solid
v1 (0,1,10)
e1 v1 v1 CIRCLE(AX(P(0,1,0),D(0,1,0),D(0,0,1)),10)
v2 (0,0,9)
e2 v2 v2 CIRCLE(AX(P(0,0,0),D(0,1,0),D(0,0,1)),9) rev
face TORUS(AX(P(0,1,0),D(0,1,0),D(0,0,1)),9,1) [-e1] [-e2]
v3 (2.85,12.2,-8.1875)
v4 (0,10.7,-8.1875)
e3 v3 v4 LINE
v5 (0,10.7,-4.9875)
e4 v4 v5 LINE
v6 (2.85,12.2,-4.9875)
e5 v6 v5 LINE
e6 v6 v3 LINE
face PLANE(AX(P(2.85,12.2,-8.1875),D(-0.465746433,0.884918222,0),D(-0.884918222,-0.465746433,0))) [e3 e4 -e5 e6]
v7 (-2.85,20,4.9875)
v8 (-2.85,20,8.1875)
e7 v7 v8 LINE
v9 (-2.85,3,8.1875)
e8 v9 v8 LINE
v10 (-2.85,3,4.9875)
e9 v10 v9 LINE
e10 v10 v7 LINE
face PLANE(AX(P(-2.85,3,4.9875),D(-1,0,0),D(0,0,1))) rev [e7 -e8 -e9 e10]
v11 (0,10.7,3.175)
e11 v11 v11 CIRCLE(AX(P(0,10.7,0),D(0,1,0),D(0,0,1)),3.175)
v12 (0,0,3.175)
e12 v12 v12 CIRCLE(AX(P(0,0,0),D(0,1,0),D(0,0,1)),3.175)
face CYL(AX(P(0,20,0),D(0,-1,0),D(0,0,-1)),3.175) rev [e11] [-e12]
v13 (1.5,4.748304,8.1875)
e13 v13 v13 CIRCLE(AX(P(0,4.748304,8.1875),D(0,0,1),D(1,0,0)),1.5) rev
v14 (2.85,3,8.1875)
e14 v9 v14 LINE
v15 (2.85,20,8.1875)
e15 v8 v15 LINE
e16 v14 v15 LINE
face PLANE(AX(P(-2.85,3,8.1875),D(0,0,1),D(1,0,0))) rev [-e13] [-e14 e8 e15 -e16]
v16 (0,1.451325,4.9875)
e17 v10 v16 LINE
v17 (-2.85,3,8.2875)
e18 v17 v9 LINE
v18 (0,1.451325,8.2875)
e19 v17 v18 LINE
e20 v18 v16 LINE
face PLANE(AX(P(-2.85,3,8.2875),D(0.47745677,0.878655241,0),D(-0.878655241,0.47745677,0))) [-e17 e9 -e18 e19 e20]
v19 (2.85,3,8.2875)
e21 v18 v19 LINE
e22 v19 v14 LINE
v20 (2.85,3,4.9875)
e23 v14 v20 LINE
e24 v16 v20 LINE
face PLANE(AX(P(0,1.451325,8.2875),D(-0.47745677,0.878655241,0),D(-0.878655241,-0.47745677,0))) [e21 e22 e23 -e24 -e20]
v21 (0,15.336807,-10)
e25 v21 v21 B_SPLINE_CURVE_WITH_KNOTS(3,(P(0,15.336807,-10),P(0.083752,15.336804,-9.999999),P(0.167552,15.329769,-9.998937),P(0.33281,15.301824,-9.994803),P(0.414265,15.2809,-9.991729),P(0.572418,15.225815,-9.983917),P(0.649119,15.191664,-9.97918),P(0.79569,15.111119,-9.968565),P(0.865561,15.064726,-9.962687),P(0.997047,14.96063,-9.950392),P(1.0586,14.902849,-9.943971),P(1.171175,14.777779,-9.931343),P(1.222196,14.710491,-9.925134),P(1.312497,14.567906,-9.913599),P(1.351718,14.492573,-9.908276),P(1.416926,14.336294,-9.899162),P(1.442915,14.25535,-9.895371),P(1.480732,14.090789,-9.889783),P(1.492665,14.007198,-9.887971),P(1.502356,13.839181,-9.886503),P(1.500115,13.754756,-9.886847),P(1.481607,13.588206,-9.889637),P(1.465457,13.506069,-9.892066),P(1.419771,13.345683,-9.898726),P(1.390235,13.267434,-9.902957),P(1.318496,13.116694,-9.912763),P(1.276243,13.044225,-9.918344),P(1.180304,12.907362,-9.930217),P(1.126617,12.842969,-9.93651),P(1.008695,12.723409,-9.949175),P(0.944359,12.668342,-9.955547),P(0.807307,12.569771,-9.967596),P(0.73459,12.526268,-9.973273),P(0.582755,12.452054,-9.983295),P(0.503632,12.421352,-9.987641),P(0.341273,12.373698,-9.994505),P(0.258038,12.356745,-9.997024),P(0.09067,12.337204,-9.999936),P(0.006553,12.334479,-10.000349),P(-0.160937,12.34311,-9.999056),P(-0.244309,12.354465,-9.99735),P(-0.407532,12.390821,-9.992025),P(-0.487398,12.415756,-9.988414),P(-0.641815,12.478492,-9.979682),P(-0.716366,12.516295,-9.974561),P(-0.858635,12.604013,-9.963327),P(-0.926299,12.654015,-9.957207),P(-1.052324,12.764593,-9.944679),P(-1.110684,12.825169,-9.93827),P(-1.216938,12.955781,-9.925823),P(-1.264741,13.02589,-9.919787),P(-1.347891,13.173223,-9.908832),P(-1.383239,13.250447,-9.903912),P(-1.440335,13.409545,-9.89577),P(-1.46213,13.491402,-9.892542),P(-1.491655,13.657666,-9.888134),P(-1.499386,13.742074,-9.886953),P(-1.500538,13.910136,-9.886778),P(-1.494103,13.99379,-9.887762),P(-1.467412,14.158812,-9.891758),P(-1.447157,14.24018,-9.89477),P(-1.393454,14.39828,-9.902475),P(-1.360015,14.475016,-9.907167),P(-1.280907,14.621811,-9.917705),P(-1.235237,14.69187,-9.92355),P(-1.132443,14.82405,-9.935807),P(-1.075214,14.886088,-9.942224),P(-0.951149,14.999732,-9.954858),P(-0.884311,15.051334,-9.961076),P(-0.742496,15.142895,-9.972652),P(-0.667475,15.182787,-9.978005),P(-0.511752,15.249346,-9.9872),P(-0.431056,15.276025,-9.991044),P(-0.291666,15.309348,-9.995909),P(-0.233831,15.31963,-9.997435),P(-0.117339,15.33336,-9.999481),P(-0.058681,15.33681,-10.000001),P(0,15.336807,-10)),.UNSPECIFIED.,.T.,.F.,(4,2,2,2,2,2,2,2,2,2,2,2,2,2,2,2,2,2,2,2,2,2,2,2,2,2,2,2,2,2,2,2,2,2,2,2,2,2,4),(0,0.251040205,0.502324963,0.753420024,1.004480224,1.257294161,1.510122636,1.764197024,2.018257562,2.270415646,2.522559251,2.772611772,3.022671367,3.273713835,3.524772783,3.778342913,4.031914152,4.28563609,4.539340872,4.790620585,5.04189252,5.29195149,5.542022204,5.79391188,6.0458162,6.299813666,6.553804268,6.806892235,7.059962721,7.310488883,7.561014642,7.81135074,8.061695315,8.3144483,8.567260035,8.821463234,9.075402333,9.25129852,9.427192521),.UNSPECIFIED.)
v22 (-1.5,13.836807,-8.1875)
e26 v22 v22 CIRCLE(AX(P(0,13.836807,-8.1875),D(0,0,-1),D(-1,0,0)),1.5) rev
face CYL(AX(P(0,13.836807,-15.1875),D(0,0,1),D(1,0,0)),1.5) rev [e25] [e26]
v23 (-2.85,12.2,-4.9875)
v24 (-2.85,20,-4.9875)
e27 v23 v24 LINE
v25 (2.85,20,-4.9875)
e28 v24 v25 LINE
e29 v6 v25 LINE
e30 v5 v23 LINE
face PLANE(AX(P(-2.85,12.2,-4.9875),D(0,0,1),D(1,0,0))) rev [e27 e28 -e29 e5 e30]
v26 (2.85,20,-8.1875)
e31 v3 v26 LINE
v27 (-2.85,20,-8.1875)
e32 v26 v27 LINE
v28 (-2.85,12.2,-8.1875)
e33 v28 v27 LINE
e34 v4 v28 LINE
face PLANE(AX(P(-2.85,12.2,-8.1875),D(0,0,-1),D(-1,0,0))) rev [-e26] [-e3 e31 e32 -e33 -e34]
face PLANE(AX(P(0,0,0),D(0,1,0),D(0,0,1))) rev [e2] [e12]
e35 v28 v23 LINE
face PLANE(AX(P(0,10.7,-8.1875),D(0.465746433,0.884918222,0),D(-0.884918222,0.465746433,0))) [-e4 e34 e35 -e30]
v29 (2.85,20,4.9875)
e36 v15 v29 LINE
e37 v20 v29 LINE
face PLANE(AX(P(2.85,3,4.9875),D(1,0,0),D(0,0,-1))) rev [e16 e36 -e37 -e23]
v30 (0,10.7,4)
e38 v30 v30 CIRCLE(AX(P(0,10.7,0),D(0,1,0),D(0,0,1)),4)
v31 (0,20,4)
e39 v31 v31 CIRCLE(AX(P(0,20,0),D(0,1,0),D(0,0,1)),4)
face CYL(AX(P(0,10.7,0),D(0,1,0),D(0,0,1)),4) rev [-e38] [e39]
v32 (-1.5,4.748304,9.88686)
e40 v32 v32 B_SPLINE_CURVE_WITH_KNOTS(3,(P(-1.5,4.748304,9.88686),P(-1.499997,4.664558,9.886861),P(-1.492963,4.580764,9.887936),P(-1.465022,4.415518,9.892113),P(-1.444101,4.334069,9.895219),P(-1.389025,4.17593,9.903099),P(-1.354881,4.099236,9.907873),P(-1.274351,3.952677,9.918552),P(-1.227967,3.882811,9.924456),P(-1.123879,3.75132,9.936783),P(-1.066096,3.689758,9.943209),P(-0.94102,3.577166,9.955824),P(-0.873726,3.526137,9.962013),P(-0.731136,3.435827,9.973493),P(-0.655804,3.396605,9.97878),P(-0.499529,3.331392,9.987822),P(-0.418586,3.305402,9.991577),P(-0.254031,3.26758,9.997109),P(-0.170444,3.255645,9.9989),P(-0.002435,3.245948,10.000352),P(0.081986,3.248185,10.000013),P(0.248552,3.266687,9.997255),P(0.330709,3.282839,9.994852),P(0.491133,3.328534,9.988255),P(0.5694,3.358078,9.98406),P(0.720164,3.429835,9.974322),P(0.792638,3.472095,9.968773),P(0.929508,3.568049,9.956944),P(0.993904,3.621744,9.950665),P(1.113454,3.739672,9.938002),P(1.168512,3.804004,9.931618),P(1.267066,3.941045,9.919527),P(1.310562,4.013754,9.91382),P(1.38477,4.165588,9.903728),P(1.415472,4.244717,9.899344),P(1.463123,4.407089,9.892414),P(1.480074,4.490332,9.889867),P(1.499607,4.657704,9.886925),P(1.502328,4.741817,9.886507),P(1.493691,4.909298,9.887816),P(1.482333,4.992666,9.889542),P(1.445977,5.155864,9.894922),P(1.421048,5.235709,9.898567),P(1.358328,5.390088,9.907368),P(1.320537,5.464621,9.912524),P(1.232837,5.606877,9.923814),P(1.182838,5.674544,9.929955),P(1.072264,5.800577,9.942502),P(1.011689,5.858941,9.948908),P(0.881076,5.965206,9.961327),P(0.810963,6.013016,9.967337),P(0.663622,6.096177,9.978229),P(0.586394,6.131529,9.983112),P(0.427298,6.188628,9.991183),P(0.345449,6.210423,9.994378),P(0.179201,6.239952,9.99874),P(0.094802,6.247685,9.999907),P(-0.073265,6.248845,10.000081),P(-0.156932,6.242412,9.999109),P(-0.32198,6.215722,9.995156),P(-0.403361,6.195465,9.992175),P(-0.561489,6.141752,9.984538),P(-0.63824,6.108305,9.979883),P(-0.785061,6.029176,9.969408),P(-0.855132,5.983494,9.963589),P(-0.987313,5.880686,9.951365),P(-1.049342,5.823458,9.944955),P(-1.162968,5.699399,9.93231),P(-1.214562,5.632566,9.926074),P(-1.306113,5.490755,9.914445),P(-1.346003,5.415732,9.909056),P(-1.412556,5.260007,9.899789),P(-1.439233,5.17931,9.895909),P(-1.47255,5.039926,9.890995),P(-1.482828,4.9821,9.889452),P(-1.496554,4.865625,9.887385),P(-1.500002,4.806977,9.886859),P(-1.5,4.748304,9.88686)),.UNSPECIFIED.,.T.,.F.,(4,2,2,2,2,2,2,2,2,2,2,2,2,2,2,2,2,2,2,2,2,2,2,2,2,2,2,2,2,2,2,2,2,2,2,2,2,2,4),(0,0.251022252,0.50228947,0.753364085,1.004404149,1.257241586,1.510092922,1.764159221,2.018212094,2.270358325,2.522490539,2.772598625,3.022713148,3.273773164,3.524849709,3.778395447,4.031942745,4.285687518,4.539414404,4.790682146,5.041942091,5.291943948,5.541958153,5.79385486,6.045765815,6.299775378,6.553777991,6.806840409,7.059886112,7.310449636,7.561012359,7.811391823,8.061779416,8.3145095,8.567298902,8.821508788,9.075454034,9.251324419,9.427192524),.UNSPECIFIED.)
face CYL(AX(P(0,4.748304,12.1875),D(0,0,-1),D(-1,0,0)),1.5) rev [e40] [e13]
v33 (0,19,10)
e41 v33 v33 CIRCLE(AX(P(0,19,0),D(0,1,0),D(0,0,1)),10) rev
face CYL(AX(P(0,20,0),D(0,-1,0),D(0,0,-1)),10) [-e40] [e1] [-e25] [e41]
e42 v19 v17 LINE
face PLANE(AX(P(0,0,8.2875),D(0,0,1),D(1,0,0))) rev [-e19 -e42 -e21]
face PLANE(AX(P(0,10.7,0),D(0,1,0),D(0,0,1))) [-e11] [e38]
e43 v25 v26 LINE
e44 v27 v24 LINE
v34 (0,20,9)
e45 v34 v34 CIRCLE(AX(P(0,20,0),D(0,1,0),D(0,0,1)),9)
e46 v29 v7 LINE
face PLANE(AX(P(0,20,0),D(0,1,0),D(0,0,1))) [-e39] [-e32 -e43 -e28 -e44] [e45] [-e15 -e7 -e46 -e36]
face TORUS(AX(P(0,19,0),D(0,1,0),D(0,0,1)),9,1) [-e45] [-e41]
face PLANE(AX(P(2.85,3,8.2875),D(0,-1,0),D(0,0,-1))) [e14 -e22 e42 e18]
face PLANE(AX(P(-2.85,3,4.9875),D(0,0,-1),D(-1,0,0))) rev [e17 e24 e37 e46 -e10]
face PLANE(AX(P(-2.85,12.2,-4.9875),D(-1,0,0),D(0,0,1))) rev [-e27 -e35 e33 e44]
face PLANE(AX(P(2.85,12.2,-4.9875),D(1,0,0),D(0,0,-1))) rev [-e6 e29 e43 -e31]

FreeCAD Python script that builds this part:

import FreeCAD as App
import Part
import Sketcher


def edges_at(feature, points):
    """Names of the edges that pass closest to the given points."""
    edges = feature.Shape.Edges
    near = lambda p: min(range(len(edges)), key=lambda i: edges[i].distToShape(Part.Vertex(*p))[0])
    return sorted({f"Edge{near(p) + 1}" for p in points})


def add_polygon(sketch, points):
    """Adds a closed chain of lines whose ends are joined by coincident constraints."""
    first, n = sketch.GeometryCount, len(points)
    for a, b in zip(points, points[1:] + points[:1]):
        sketch.addGeometry(Part.LineSegment(App.Vector(*a, 0), App.Vector(*b, 0)), False)
    for i in range(n):
        sketch.addConstraint(Sketcher.Constraint("Coincident", first + i, 2, first + (i + 1) % n, 1))

doc = App.newDocument("Part")
params = doc.addObject("Spreadsheet::Sheet", "Params")
for row, (alias, value) in enumerate([
    ("sketch1_diameter", "20 mm"),
    ("sketch1_diameter2", "6.35 mm"),
    ("pad1_length", "20 mm"),
    ("sketch2_width", "5.7 mm"),
    ("sketch2_height", "3.2 mm"),
    ("pocket1_length", "17 mm"),
    ("sketch3_width", "5.7 mm"),
    ("pocket2_length", "3.3 mm"),
    ("sketch4_diameter", "8 mm"),
    ("pocket3_length", "9.3 mm"),
    ("sketch5_width", "5.7 mm"),
    ("sketch5_height", "3.2 mm"),
    ("pocket4_length", "7.8 mm"),
    ("sketch6_width", "5.7 mm"),
    ("pocket5_length", "3.2 mm"),
    ("fillet_radius", "1 mm"),
    ("sketch7_diameter", "3 mm"),
    ("pocket6_length", "10.2 mm"),
    ("sketch8_diameter", "3 mm"),
    ("pocket7_length", "7.2 mm"),
], start=1):
    params.set(f"A{row}", alias)
    params.set(f"B{row}", "=" + value)
    params.setAlias(f"B{row}", alias)

body = doc.addObject("PartDesign::Body", "Body")

# Sketch on XZ plane
sketch1 = body.newObject("Sketcher::SketchObject", "Sketch")
sketch1.AttachmentSupport = (doc.getObject("XZ_Plane"), [""])
sketch1.MapMode = "FlatFace"
sketch1.addGeometry(Part.Circle(App.Vector(0, 0, 0), App.Vector(0, 0, 1), 10), False)
sketch1.addGeometry(Part.Circle(App.Vector(0, 0, 0), App.Vector(0, 0, 1), 3.2), False)
sketch1.addConstraint(Sketcher.Constraint("Coincident", 0, 3, -1, 1))
sketch1.addConstraint(Sketcher.Constraint("Coincident", 1, 3, -1, 1))
sketch1.addConstraint(Sketcher.Constraint("Diameter", 0, 20.0))
sketch1.addConstraint(Sketcher.Constraint("Diameter", 1, 6.35))
sketch1.setExpression("Constraints[2]", "Params.sketch1_diameter")
sketch1.setExpression("Constraints[3]", "Params.sketch1_diameter2")
pad1 = body.newObject("PartDesign::Pad", "Pad")
pad1.Profile = sketch1
pad1.setExpression("Length", "Params.pad1_length")
pad1.Reversed = True

# Sketch on XZ plane
sketch2 = body.newObject("Sketcher::SketchObject", "Sketch001")
sketch2.AttachmentSupport = (doc.getObject("XZ_Plane"), [""])
sketch2.MapMode = "FlatFace"
sketch2.AttachmentOffset = App.Placement(App.Vector(0, 0, -20), App.Rotation())
add_polygon(sketch2, [(-2.9, 5), (-2.9, 8.2), (2.9, 8.2), (2.9, 5)])  # lines 0-3
sketch2.addConstraint(Sketcher.Constraint("Vertical", 0))
sketch2.addConstraint(Sketcher.Constraint("Horizontal", 1))
sketch2.addConstraint(Sketcher.Constraint("Vertical", 2))
sketch2.addConstraint(Sketcher.Constraint("Horizontal", 3))
sketch2.addConstraint(Sketcher.Constraint("DistanceX", 1, 1, 1, 2, 5.7))
sketch2.addConstraint(Sketcher.Constraint("DistanceY", 0, 1, 0, 2, 3.2))
sketch2.addConstraint(Sketcher.Constraint("DistanceX", 0, 2, -1, 1, 2.85))
sketch2.addConstraint(Sketcher.Constraint("DistanceY", -1, 1, 0, 2, 8.1875))
sketch2.setExpression("Constraints[8]", "Params.sketch2_width")
sketch2.setExpression("Constraints[9]", "Params.sketch2_height")
pocket1 = body.newObject("PartDesign::Pocket", "Pocket")
pocket1.Profile = sketch2
pocket1.setExpression("Length", "Params.pocket1_length")
pocket1.Reversed = True

# Sketch on XY plane
sketch3 = body.newObject("Sketcher::SketchObject", "Sketch002")
sketch3.AttachmentSupport = (doc.getObject("XY_Plane"), [""])
sketch3.MapMode = "FlatFace"
sketch3.AttachmentOffset = App.Placement(App.Vector(0, 0, 4.9875), App.Rotation())
add_polygon(sketch3, [(-2.9, 3), (0, 1.5), (2.9, 3)])  # lines 0-2
sketch3.addConstraint(Sketcher.Constraint("Horizontal", 2))
sketch3.addConstraint(Sketcher.Constraint("PointOnObject", 0, 2, -2))
sketch3.addConstraint(Sketcher.Constraint("Equal", 0, 1))
sketch3.addConstraint(Sketcher.Constraint("DistanceX", 2, 2, 2, 1, 5.7))
sketch3.addConstraint(Sketcher.Constraint("DistanceY", -1, 1, 1, 2, 3.0))
sketch3.addConstraint(Sketcher.Constraint("Distance", 0, 3.243593))
sketch3.setExpression("Constraints[6]", "Params.sketch3_width")
pocket2 = body.newObject("PartDesign::Pocket", "Pocket001")
pocket2.Profile = sketch3
pocket2.setExpression("Length", "Params.pocket2_length")
pocket2.Reversed = True

# Sketch on XZ plane
sketch4 = body.newObject("Sketcher::SketchObject", "Sketch003")
sketch4.AttachmentSupport = (doc.getObject("XZ_Plane"), [""])
sketch4.MapMode = "FlatFace"
sketch4.AttachmentOffset = App.Placement(App.Vector(0, 0, -20), App.Rotation())
sketch4.addGeometry(Part.Circle(App.Vector(0, 0, 0), App.Vector(0, 0, 1), 4), False)
sketch4.addConstraint(Sketcher.Constraint("Coincident", 0, 3, -1, 1))
sketch4.addConstraint(Sketcher.Constraint("Diameter", 0, 8.0))
sketch4.setExpression("Constraints[1]", "Params.sketch4_diameter")
pocket3 = body.newObject("PartDesign::Pocket", "Pocket002")
pocket3.Profile = sketch4
pocket3.setExpression("Length", "Params.pocket3_length")
pocket3.Reversed = True

# Sketch on XZ plane
sketch5 = body.newObject("Sketcher::SketchObject", "Sketch004")
sketch5.AttachmentSupport = (doc.getObject("XZ_Plane"), [""])
sketch5.MapMode = "FlatFace"
sketch5.AttachmentOffset = App.Placement(App.Vector(0, 0, -20), App.Rotation())
add_polygon(sketch5, [(-2.9, -8.2), (-2.9, -5), (2.9, -5), (2.9, -8.2)])  # lines 0-3
sketch5.addConstraint(Sketcher.Constraint("Vertical", 0))
sketch5.addConstraint(Sketcher.Constraint("Horizontal", 1))
sketch5.addConstraint(Sketcher.Constraint("Vertical", 2))
sketch5.addConstraint(Sketcher.Constraint("Horizontal", 3))
sketch5.addConstraint(Sketcher.Constraint("DistanceX", 1, 1, 1, 2, 5.7))
sketch5.addConstraint(Sketcher.Constraint("DistanceY", 0, 1, 0, 2, 3.2))
sketch5.addConstraint(Sketcher.Constraint("DistanceX", 0, 2, -1, 1, 2.85))
sketch5.addConstraint(Sketcher.Constraint("DistanceY", 0, 2, -1, 1, 4.9875))
sketch5.setExpression("Constraints[8]", "Params.sketch5_width")
sketch5.setExpression("Constraints[9]", "Params.sketch5_height")
pocket4 = body.newObject("PartDesign::Pocket", "Pocket003")
pocket4.Profile = sketch5
pocket4.setExpression("Length", "Params.pocket4_length")
pocket4.Reversed = True

# Sketch on XY plane
sketch6 = body.newObject("Sketcher::SketchObject", "Sketch005")
sketch6.AttachmentSupport = (doc.getObject("XY_Plane"), [""])
sketch6.MapMode = "FlatFace"
sketch6.AttachmentOffset = App.Placement(App.Vector(0, 0, -4.9875), App.Rotation())
add_polygon(sketch6, [(2.9, 12.2), (0, 10.7), (-2.9, 12.2)])  # lines 0-2
sketch6.addConstraint(Sketcher.Constraint("Horizontal", 2))
sketch6.addConstraint(Sketcher.Constraint("PointOnObject", 0, 2, -2))
sketch6.addConstraint(Sketcher.Constraint("Equal", 0, 1))
sketch6.addConstraint(Sketcher.Constraint("DistanceX", 2, 1, 2, 2, 5.7))
sketch6.addConstraint(Sketcher.Constraint("DistanceY", -1, 1, 0, 2, 10.7))
sketch6.addConstraint(Sketcher.Constraint("DistanceY", -1, 1, 1, 2, 12.2))
sketch6.setExpression("Constraints[6]", "Params.sketch6_width")
pocket5 = body.newObject("PartDesign::Pocket", "Pocket004")
pocket5.Profile = sketch6
pocket5.setExpression("Length", "Params.pocket5_length")
doc.recompute()

fillet = body.newObject("PartDesign::Fillet", "Fillet")
fillet.Base = (pocket5, edges_at(pocket5, [(0, 0, -10), (0, 20, -10)]))
fillet.setExpression("Radius", "Params.fillet_radius")

# Sketch on XY plane
sketch7 = body.newObject("Sketcher::SketchObject", "Sketch006")
sketch7.AttachmentSupport = (doc.getObject("XY_Plane"), [""])
sketch7.MapMode = "FlatFace"
sketch7.AttachmentOffset = App.Placement(App.Vector(0, 0, -4.9875), App.Rotation())
sketch7.addGeometry(Part.Circle(App.Vector(0, 13.8, 0), App.Vector(0, 0, 1), 1.5), False)
sketch7.addConstraint(Sketcher.Constraint("PointOnObject", 0, 3, -2))
sketch7.addConstraint(Sketcher.Constraint("Diameter", 0, 3.0))
sketch7.addConstraint(Sketcher.Constraint("DistanceY", -1, 1, 0, 3, 13.836807))
sketch7.setExpression("Constraints[1]", "Params.sketch7_diameter")
pocket6 = body.newObject("PartDesign::Pocket", "Pocket005")
pocket6.Profile = sketch7
pocket6.setExpression("Length", "Params.pocket6_length")

# Sketch on XY plane
sketch8 = body.newObject("Sketcher::SketchObject", "Sketch007")
sketch8.AttachmentSupport = (doc.getObject("XY_Plane"), [""])
sketch8.MapMode = "FlatFace"
sketch8.AttachmentOffset = App.Placement(App.Vector(0, 0, 4.9875), App.Rotation())
sketch8.addGeometry(Part.Circle(App.Vector(0, 4.7, 0), App.Vector(0, 0, 1), 1.5), False)
sketch8.addConstraint(Sketcher.Constraint("PointOnObject", 0, 3, -2))
sketch8.addConstraint(Sketcher.Constraint("Diameter", 0, 3.0))
sketch8.addConstraint(Sketcher.Constraint("DistanceY", -1, 1, 0, 3, 4.748304))
sketch8.setExpression("Constraints[1]", "Params.sketch8_diameter")
pocket7 = body.newObject("PartDesign::Pocket", "Pocket006")
pocket7.Profile = sketch8
pocket7.setExpression("Length", "Params.pocket7_length")
pocket7.Reversed = True

doc.recompute()
